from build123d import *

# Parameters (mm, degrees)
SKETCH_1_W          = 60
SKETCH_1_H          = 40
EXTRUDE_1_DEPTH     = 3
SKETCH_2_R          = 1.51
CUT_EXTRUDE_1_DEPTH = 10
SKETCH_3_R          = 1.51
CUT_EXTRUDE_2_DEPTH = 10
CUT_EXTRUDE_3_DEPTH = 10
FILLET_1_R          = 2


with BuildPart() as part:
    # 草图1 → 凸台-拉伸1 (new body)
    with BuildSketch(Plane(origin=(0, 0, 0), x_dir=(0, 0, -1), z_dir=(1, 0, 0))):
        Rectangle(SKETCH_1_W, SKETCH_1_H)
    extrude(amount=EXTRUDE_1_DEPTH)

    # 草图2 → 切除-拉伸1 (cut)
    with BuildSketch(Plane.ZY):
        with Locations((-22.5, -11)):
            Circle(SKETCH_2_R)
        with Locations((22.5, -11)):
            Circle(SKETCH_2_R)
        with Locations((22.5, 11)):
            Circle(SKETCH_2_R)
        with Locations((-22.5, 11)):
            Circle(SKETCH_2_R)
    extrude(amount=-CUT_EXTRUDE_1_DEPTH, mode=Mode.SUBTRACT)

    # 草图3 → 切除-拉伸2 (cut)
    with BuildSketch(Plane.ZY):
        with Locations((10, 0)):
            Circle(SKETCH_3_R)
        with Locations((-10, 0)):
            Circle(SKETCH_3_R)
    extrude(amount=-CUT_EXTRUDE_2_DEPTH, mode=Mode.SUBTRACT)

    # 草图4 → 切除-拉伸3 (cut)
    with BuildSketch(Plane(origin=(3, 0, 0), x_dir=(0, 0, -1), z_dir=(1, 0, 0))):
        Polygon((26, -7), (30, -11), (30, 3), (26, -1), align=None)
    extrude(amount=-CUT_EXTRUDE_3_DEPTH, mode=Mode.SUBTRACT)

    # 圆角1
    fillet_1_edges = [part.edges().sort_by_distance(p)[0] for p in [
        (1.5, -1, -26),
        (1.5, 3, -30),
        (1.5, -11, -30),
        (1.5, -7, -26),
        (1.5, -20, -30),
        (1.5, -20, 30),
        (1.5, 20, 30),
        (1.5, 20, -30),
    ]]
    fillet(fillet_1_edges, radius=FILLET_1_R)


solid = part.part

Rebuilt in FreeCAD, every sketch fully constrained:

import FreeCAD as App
import Part
import Sketcher
from FreeCAD import Vector


def edges_at(feature, points):
    """Names of the edges that pass closest to the given points."""
    edges = feature.Shape.Edges
    near = lambda p: min(range(len(edges)), key=lambda i: edges[i].distToShape(Part.Vertex(*p))[0])
    return sorted({f"Edge{near(p) + 1}" for p in points})

doc = App.newDocument("Part")
body = doc.addObject("PartDesign::Body", "Body")

sketch1 = body.newObject("Sketcher::SketchObject", "Sketch")
sketch1.AttachmentSupport = (doc.getObject("YZ_Plane"), [""])
sketch1.MapMode = "FlatFace"
sketch1.addGeometry([
    Part.LineSegment(Vector(20, 30, 0), Vector(-20, 30, 0)),
    Part.LineSegment(Vector(-20, 30, 0), Vector(-20, -30, 0)),
    Part.LineSegment(Vector(-20, -30, 0), Vector(20, -30, 0)),
    Part.LineSegment(Vector(20, -30, 0), Vector(20, 30, 0)),
], False)
sketch1.addConstraint([
    Sketcher.Constraint("Coincident", 0, 2, 1, 1),
    Sketcher.Constraint("Coincident", 1, 2, 2, 1),
    Sketcher.Constraint("Coincident", 2, 2, 3, 1),
    Sketcher.Constraint("Coincident", 3, 2, 0, 1),
    Sketcher.Constraint("Horizontal", 0),
    Sketcher.Constraint("Vertical", 1),
    Sketcher.Constraint("Horizontal", 2),
    Sketcher.Constraint("Vertical", 3),
    Sketcher.Constraint("Symmetric", 0, 2, 2, 2, -1, 1),
    Sketcher.Constraint("DistanceX", 0, 2, 0, 1, 40.0),
    Sketcher.Constraint("DistanceY", 1, 2, 1, 1, 60.0),
])
pad1 = body.newObject("PartDesign::Pad", "Pad")
pad1.Profile = sketch1
pad1.Length = 3

sketch2 = body.newObject("Sketcher::SketchObject", "Sketch001")
sketch2.AttachmentSupport = (doc.getObject("YZ_Plane"), [""])
sketch2.MapMode = "FlatFace"
sketch2.addGeometry([
    Part.Circle(Vector(-11, -22.5, 0), Vector(0, 0, 1), 1.51),
    Part.Circle(Vector(-11, 22.5, 0), Vector(0, 0, 1), 1.51),
    Part.Circle(Vector(11, 22.5, 0), Vector(0, 0, 1), 1.51),
    Part.Circle(Vector(11, -22.5, 0), Vector(0, 0, 1), 1.51),
], False)
sketch2.addConstraint([
    Sketcher.Constraint("Equal", 0, 1),
    Sketcher.Constraint("Equal", 1, 2),
    Sketcher.Constraint("Equal", 2, 3),
    Sketcher.Constraint("Symmetric", 0, 3, 2, 3, -1, 1),
    Sketcher.Constraint("Symmetric", 1, 3, 3, 3, -1, 1),
    Sketcher.Constraint("Symmetric", 1, 3, 2, 3, -2),
    Sketcher.Constraint("Diameter", 0, 3.02),
    Sketcher.Constraint("DistanceX", 0, 3, -1, 1, 11.0),
    Sketcher.Constraint("DistanceY", 0, 3, 1, 3, 45.0),
])
pocket1 = body.newObject("PartDesign::Pocket", "Pocket")
pocket1.Profile = sketch2
pocket1.Length = 10
pocket1.Reversed = True

sketch3 = body.newObject("Sketcher::SketchObject", "Sketch002")
sketch3.AttachmentSupport = (doc.getObject("YZ_Plane"), [""])
sketch3.MapMode = "FlatFace"
sketch3.addGeometry([
    Part.Circle(Vector(0, 10, 0), Vector(0, 0, 1), 1.51),
    Part.Circle(Vector(0, -10, 0), Vector(0, 0, 1), 1.51),
], False)
sketch3.addConstraint([
    Sketcher.Constraint("Equal", 0, 1),
    Sketcher.Constraint("Symmetric", 0, 3, 1, 3, -1, 1),
    Sketcher.Constraint("PointOnObject", 0, 3, -2),
    Sketcher.Constraint("Diameter", 0, 3.02),
    Sketcher.Constraint("DistanceY", -1, 1, 0, 3, 10.0),
])
pocket2 = body.newObject("PartDesign::Pocket", "Pocket001")
pocket2.Profile = sketch3
pocket2.Length = 10
pocket2.Reversed = True

sketch4 = body.newObject("Sketcher::SketchObject", "Sketch003")
sketch4.AttachmentSupport = (doc.getObject("YZ_Plane"), [""])
sketch4.MapMode = "FlatFace"
sketch4.AttachmentOffset = App.Placement(Vector(0, 0, 3), App.Rotation())
sketch4.addGeometry([
    Part.LineSegment(Vector(-7, -26, 0), Vector(-11, -30, 0)),
    Part.LineSegment(Vector(-11, -30, 0), Vector(3, -30, 0)),
    Part.LineSegment(Vector(3, -30, 0), Vector(-1, -26, 0)),
    Part.LineSegment(Vector(-1, -26, 0), Vector(-7, -26, 0)),
], False)
sketch4.addConstraint([
    Sketcher.Constraint("Coincident", 0, 2, 1, 1),
    Sketcher.Constraint("Coincident", 1, 2, 2, 1),
    Sketcher.Constraint("Coincident", 2, 2, 3, 1),
    Sketcher.Constraint("Coincident", 3, 2, 0, 1),
    Sketcher.Constraint("Horizontal", 1),
    Sketcher.Constraint("Horizontal", 3),
    Sketcher.Constraint("Perpendicular", 0, 2),
    Sketcher.Constraint("Equal", 0, 2),
    Sketcher.Constraint("DistanceX", 1, 1, 1, 2, 14.0),
    Sketcher.Constraint("DistanceX", 3, 2, 3, 1, 6.0),
    Sketcher.Constraint("DistanceX", 0, 2, -1, 1, 11.0),
    Sketcher.Constraint("DistanceY", 0, 2, -1, 1, 30.0),
])
pocket3 = body.newObject("PartDesign::Pocket", "Pocket002")
pocket3.Profile = sketch4
pocket3.Length = 10
doc.recompute()

fillet = body.newObject("PartDesign::Fillet", "Fillet")
fillet.Base = (pocket3, edges_at(pocket3, [
    (1.5, -1, -26),
    (1.5, 3, -30),
    (1.5, -11, -30),
    (1.5, -7, -26),
    (1.5, -20, -30),
    (1.5, -20, 30),
    (1.5, 20, 30),
    (1.5, 20, -30),
]))
fillet.Radius = 2

doc.recompute()
